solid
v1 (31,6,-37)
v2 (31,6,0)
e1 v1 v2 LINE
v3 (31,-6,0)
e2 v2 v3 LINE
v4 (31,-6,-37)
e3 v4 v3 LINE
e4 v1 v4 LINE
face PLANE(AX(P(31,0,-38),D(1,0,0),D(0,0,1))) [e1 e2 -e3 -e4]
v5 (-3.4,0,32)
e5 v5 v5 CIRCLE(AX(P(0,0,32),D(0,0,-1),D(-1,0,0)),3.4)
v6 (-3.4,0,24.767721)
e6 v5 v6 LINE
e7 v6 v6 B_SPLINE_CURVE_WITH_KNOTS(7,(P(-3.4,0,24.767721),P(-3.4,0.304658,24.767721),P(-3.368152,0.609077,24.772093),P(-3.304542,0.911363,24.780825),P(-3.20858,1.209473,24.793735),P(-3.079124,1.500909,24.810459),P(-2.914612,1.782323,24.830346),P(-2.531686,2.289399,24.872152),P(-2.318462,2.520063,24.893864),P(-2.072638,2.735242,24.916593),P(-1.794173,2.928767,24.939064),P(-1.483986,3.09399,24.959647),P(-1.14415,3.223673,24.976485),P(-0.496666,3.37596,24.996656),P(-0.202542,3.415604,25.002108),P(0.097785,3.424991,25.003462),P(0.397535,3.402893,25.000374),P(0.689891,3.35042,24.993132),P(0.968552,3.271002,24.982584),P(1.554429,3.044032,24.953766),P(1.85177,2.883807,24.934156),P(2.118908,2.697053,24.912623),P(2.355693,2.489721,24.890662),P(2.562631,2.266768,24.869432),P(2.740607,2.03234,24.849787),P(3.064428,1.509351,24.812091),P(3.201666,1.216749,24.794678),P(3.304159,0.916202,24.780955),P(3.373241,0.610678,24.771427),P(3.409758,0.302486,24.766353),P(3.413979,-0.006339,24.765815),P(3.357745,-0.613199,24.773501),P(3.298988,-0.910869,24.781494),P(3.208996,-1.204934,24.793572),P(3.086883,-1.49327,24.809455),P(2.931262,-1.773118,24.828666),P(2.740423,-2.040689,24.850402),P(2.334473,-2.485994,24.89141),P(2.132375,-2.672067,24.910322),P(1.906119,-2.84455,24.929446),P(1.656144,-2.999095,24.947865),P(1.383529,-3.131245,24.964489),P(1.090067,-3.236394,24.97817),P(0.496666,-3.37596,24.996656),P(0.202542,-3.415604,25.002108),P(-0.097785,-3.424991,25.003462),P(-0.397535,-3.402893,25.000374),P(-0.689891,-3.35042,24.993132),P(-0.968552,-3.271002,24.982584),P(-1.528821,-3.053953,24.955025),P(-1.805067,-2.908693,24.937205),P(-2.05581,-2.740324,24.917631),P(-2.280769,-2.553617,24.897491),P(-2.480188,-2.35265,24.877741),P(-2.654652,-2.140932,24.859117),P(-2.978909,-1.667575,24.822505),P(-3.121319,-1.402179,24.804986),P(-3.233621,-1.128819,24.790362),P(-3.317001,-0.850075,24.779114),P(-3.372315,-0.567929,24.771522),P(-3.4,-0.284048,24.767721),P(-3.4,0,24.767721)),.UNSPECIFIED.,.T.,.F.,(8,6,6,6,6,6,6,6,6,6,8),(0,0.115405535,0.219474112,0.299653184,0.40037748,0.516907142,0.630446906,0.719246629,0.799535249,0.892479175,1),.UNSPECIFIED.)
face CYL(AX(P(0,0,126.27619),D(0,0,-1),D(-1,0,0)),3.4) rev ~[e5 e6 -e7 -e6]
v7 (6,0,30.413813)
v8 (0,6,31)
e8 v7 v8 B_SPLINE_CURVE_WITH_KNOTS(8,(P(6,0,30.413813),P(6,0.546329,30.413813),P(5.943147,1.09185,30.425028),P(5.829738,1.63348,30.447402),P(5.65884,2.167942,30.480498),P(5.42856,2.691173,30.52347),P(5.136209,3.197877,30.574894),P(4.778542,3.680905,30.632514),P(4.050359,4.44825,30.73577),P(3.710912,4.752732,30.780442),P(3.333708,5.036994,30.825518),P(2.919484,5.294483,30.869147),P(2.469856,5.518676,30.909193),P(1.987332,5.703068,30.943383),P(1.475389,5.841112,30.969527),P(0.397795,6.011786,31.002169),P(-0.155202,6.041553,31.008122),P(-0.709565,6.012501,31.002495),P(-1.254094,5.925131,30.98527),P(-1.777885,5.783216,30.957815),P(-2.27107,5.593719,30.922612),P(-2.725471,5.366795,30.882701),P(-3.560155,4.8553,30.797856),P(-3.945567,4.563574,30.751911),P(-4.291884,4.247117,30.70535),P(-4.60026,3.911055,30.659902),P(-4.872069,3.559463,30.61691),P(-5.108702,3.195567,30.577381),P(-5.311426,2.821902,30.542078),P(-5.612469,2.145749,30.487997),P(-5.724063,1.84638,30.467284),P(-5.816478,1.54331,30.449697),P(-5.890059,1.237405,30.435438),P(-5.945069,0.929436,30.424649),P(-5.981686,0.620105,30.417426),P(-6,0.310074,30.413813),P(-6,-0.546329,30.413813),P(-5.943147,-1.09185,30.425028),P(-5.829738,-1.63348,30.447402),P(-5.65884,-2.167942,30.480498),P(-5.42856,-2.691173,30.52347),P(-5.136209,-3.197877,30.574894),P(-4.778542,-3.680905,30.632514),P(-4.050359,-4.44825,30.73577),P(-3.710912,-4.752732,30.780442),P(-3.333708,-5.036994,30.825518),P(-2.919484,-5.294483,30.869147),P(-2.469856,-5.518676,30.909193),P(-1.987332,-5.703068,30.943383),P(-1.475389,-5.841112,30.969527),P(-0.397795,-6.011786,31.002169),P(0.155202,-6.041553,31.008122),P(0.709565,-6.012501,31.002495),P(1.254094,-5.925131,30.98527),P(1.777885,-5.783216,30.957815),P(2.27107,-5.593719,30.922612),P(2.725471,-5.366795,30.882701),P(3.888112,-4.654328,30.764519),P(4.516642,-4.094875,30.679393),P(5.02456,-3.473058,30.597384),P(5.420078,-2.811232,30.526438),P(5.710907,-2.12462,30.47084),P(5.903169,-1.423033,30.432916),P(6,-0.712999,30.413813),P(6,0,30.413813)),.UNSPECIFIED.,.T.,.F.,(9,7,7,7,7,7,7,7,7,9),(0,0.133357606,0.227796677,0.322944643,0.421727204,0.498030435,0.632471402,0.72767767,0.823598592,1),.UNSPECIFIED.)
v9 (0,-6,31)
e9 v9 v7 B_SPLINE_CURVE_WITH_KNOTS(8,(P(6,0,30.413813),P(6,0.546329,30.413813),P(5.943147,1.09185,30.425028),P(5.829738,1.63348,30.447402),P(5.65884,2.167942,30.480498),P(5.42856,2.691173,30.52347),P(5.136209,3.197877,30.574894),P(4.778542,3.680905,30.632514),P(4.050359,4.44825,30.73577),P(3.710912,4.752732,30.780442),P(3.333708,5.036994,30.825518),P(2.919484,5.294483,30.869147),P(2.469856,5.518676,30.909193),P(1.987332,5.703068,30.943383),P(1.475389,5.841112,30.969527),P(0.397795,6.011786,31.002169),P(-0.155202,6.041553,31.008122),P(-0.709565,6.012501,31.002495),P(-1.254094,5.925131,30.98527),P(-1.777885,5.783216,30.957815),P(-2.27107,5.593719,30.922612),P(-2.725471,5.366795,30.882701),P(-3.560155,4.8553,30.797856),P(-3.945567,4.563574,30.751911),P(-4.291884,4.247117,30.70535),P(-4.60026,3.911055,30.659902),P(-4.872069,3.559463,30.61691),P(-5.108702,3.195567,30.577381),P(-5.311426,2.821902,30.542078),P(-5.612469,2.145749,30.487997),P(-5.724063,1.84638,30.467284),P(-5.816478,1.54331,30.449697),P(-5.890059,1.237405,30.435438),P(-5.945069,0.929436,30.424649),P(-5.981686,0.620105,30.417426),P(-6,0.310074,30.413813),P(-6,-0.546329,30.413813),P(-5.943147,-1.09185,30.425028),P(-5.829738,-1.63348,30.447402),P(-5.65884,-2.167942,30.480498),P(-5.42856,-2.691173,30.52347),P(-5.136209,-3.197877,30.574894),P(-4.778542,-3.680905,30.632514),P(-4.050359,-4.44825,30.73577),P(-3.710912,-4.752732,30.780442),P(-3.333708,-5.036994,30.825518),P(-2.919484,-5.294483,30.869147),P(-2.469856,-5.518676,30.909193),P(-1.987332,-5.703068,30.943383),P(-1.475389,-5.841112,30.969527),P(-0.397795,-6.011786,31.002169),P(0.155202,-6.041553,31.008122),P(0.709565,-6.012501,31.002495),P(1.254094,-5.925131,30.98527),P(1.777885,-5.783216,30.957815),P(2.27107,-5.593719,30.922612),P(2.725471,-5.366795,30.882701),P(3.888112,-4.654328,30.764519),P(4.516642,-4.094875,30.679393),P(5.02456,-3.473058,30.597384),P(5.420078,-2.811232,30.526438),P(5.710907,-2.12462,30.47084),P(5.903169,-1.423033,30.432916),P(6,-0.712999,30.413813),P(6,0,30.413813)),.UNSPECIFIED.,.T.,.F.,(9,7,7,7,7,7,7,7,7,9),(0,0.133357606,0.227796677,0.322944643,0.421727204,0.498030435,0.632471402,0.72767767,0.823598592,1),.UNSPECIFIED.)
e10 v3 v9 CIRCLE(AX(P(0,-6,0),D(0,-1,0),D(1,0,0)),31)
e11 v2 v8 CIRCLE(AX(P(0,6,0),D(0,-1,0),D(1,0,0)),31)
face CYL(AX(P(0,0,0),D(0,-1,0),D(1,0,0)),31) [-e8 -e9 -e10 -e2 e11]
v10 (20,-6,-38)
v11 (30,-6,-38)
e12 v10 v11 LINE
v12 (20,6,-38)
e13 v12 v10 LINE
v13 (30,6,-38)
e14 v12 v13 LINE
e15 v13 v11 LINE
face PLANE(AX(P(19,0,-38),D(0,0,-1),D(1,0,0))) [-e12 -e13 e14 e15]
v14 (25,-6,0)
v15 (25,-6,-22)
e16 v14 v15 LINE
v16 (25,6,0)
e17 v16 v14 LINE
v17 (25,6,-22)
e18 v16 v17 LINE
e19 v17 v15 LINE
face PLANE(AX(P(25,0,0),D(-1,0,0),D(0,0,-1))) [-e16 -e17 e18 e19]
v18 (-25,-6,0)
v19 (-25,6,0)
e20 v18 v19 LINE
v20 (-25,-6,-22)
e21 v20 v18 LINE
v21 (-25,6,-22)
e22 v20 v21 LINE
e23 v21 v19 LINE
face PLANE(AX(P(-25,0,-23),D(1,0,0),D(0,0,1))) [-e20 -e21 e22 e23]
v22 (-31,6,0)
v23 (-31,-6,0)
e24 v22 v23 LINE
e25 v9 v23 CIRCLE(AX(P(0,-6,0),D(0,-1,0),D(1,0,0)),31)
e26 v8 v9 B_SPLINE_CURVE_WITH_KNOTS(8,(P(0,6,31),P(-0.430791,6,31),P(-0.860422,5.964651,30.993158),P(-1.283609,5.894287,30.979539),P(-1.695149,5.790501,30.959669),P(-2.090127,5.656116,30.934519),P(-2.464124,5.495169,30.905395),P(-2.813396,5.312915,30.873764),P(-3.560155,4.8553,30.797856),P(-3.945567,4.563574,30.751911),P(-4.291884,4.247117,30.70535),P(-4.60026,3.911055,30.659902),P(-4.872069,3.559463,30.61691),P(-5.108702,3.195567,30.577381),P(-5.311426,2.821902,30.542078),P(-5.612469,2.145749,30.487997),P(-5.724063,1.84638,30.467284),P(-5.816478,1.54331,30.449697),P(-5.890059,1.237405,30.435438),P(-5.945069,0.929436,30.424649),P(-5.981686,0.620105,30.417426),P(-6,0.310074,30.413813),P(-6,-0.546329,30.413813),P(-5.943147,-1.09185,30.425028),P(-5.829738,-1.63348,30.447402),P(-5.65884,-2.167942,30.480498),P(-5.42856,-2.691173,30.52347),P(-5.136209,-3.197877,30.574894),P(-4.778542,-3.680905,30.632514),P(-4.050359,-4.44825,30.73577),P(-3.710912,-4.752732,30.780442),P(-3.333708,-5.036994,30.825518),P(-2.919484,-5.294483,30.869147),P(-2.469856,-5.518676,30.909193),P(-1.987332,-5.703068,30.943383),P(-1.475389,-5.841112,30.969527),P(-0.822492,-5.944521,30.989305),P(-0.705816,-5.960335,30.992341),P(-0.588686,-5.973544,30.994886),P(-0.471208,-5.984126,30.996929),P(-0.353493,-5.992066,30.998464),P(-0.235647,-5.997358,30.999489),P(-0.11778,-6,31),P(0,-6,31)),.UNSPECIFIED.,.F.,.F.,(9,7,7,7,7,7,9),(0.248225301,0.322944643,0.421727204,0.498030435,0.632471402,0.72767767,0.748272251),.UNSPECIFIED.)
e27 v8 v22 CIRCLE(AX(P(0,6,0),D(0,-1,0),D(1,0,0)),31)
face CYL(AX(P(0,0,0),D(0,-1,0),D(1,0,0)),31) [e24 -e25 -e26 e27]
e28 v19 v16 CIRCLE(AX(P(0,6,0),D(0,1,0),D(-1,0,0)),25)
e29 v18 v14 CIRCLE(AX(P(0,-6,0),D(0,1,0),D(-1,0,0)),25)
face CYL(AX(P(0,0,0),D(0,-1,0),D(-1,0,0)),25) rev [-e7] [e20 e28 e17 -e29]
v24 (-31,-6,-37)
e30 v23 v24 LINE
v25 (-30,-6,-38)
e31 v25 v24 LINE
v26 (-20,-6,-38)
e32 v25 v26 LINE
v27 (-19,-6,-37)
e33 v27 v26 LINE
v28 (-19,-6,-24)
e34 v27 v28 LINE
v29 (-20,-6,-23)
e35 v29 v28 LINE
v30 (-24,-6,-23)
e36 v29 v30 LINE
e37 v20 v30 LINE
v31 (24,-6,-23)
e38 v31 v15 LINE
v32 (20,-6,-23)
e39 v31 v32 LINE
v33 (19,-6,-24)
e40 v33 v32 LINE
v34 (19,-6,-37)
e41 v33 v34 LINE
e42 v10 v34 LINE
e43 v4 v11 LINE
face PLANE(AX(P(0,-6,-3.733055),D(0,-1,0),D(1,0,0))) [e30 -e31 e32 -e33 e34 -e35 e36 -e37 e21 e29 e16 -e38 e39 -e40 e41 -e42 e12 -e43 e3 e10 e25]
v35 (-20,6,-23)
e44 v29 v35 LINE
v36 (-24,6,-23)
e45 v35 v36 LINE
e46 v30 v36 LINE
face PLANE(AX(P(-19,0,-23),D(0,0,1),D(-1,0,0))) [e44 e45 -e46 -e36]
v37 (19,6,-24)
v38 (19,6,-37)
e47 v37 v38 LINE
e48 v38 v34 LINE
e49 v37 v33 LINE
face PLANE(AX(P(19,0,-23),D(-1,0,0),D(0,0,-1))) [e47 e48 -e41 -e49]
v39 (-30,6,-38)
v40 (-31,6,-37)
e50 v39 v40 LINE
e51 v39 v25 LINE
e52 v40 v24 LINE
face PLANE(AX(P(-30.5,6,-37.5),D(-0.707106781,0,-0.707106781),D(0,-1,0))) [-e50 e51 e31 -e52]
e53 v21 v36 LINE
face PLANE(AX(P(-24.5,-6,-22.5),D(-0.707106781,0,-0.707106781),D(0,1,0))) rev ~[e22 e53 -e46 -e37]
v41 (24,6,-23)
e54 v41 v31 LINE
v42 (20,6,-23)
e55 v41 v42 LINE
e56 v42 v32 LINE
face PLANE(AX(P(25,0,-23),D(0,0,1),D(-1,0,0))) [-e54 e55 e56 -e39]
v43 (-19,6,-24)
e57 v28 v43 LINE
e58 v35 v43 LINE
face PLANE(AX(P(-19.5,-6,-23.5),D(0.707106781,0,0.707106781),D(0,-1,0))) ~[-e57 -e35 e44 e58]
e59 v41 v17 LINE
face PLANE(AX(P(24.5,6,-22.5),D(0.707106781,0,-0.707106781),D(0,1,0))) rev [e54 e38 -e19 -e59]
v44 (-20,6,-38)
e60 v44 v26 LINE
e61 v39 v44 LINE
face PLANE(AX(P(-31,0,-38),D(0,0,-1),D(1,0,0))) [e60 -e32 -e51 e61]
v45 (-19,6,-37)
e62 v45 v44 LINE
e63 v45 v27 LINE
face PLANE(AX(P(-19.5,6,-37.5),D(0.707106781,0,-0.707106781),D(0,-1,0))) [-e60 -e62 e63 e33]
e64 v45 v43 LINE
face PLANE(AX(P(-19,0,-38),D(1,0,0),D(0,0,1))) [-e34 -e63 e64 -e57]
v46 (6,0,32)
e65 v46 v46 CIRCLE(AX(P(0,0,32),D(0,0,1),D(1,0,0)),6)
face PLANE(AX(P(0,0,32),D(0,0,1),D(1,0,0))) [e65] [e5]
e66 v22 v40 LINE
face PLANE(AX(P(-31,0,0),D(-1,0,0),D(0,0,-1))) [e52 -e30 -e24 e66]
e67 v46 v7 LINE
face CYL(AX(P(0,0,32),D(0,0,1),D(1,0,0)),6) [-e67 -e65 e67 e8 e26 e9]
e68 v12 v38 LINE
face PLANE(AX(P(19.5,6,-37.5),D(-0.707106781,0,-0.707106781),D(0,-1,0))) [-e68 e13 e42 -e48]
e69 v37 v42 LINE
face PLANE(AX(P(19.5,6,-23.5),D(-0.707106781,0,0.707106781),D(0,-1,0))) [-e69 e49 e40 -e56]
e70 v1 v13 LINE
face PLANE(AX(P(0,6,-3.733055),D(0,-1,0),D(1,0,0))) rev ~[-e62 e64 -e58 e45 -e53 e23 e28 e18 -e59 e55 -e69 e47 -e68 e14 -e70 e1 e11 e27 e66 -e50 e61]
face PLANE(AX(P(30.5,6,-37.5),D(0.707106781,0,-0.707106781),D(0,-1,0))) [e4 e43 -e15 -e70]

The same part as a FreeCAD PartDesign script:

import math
import FreeCAD as App
import Part
import Sketcher

V = App.Vector
Q = App.Units.Quantity


def edges_at(feature, points):
    """Names of the edges that pass closest to the given points."""
    edges = feature.Shape.Edges
    near = lambda p: min(range(len(edges)), key=lambda i: edges[i].distToShape(Part.Vertex(*p))[0])
    return sorted({f"Edge{near(p) + 1}" for p in points})

doc = App.newDocument("Part")
body = doc.addObject("PartDesign::Body", "Body")

# Sketch on XZ plane
sketch1 = body.newObject("Sketcher::SketchObject", "Sketch")
sketch1.AttachmentSupport = (doc.getObject("XZ_Plane"), [""])
sketch1.MapMode = "FlatFace"
sketch1.addGeometry([
    Part.ArcOfCircle(Part.Circle(V(0, 0, 0), V(0, 0, 1), 25), math.radians(0), math.radians(180)),  # 0
    Part.LineSegment(V(25, 0, 0), V(25, -23, 0)),  # 1
    Part.LineSegment(V(25, -23, 0), V(19, -23, 0)),  # 2
    Part.LineSegment(V(19, -23, 0), V(19, -38, 0)),  # 3
    Part.LineSegment(V(19, -38, 0), V(31, -38, 0)),  # 4
    Part.LineSegment(V(31, -38, 0), V(31, 0, 0)),  # 5
    Part.ArcOfCircle(Part.Circle(V(0, 0, 0), V(0, 0, 1), 31), math.radians(0), math.radians(180)),  # 6
    Part.LineSegment(V(-31, 0, 0), V(-31, -38, 0)),  # 7
    Part.LineSegment(V(-31, -38, 0), V(-19, -38, 0)),  # 8
    Part.LineSegment(V(-19, -38, 0), V(-19, -23, 0)),  # 9
    Part.LineSegment(V(-19, -23, 0), V(-25, -23, 0)),  # 10
    Part.LineSegment(V(-25, -23, 0), V(-25, 0, 0)),  # 11
], False)
sketch1.addConstraint([
    Sketcher.Constraint("Tangent", 0, 1, 1, 1),
    Sketcher.Constraint("Coincident", 1, 2, 2, 1),
    Sketcher.Constraint("Coincident", 2, 2, 3, 1),
    Sketcher.Constraint("Coincident", 3, 2, 4, 1),
    Sketcher.Constraint("Coincident", 4, 2, 5, 1),
    Sketcher.Constraint("Tangent", 5, 2, 6, 1),
    Sketcher.Constraint("Tangent", 6, 2, 7, 1),
    Sketcher.Constraint("Coincident", 7, 2, 8, 1),
    Sketcher.Constraint("Coincident", 8, 2, 9, 1),
    Sketcher.Constraint("Coincident", 9, 2, 10, 1),
    Sketcher.Constraint("Coincident", 10, 2, 11, 1),
    Sketcher.Constraint("Tangent", 11, 2, 0, 2),
    Sketcher.Constraint("Vertical", 1),
    Sketcher.Constraint("Horizontal", 2),
    Sketcher.Constraint("Vertical", 3),
    Sketcher.Constraint("Horizontal", 4),
    Sketcher.Constraint("Vertical", 5),
    Sketcher.Constraint("Vertical", 7),
    Sketcher.Constraint("Horizontal", 8),
    Sketcher.Constraint("Vertical", 9),
    Sketcher.Constraint("Horizontal", 10),
    Sketcher.Constraint("Vertical", 11),
    Sketcher.Constraint("Coincident", 0, 3, -1, 1),
    Sketcher.Constraint("Coincident", 6, 3, -1, 1),
    Sketcher.Constraint("Symmetric", 3, 2, 8, 2, -2),
    Sketcher.Constraint("Horizontal", 2, 2, 9, 2),
    Sketcher.Constraint("Radius", 0, Q("25 mm")),
    Sketcher.Constraint("Radius", 6, Q("31 mm")),
    Sketcher.Constraint("DistanceX", 2, 2, 2, 1, Q("6 mm")),
    Sketcher.Constraint("DistanceY", 1, 2, 1, 1, Q("23 mm")),
    Sketcher.Constraint("DistanceY", 3, 2, 3, 1, Q("15 mm")),
])
pad1 = body.newObject("PartDesign::Pad", "Pad")
pad1.Profile = sketch1
pad1.Length = 12
pad1.Midplane = True
doc.recompute()

chamfer = body.newObject("PartDesign::Chamfer", "Chamfer")
chamfer.Base = (pad1, edges_at(pad1, [
    (-25, 0, -23),
    (-19, 0, -23),
    (-19, 0, -38),
    (-31, 0, -38),
    (19, 0, -38),
    (31, 0, -38),
    (25, 0, -23),
    (19, 0, -23),
]))
chamfer.ChamferType = "Two distances"
chamfer.Size = 1
chamfer.Size2 = 1

# Sketch on XY plane
sketch2 = body.newObject("Sketcher::SketchObject", "Sketch001")
sketch2.AttachmentSupport = (doc.getObject("XY_Plane"), [""])
sketch2.MapMode = "FlatFace"
sketch2.AttachmentOffset = App.Placement(V(0, 0, 32), App.Rotation())
sketch2.addGeometry(Part.Circle(V(0, 0, 0), V(0, 0, 1), 6), False)
sketch2.addConstraint([
    Sketcher.Constraint("Coincident", 0, 3, -1, 1),
    Sketcher.Constraint("Diameter", 0, Q("12 mm")),
])
pad2 = body.newObject("PartDesign::Pad", "Pad001")
pad2.Profile = sketch2
pad2.Type = "UpToLast"
pad2.Reversed = True

# Sketch on XY plane
sketch3 = body.newObject("Sketcher::SketchObject", "Sketch002")
sketch3.AttachmentSupport = (doc.getObject("XY_Plane"), [""])
sketch3.MapMode = "FlatFace"
sketch3.AttachmentOffset = App.Placement(V(0, 0, 32), App.Rotation())
sketch3.addGeometry(Part.Circle(V(0, 0, 0), V(0, 0, 1), 3.4), False)
sketch3.addConstraint([
    Sketcher.Constraint("Coincident", 0, 3, -1, 1),
    Sketcher.Constraint("Diameter", 0, Q("6.8 mm")),
])
doc.recompute()
hole = body.newObject("PartDesign::Hole", "Hole")
hole.Profile = sketch3
hole.ThreadType = "None"
hole.Diameter = 6.8
hole.DepthType = "ThroughAll"

doc.recompute()
